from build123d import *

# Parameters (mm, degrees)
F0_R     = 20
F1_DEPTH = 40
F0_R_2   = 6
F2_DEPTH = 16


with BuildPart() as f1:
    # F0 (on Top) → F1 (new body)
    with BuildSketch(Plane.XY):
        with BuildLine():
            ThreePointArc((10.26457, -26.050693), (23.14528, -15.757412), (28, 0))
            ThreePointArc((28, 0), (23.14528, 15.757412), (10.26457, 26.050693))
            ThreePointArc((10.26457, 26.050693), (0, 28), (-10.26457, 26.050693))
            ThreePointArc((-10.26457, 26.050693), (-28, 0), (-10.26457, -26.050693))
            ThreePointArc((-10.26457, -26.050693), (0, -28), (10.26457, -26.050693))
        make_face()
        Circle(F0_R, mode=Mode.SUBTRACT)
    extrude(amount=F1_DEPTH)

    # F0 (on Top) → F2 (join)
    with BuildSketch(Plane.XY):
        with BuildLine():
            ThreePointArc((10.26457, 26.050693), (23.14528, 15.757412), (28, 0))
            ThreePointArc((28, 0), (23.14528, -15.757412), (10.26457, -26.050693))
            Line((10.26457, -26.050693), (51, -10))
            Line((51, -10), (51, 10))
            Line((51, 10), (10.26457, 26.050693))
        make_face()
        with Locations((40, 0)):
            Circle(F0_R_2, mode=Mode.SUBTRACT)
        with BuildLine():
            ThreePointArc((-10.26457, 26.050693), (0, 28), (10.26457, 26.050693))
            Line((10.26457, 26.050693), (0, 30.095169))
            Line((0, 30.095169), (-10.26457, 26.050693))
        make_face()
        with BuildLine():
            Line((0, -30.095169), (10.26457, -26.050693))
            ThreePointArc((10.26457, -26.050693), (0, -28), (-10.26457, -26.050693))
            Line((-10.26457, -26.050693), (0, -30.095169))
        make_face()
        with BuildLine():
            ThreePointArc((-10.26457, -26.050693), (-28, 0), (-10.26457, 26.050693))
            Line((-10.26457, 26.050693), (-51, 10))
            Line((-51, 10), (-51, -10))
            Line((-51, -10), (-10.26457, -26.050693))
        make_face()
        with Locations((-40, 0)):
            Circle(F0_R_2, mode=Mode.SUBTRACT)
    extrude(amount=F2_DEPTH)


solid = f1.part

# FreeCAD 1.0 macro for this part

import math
import FreeCAD as App
import Part
import Sketcher
Q = App.Units.Quantity

doc = App.newDocument("Part")
body = doc.addObject("PartDesign::Body", "Body")

sketch1 = doc.addObject("Sketcher::SketchObject", "Sketch")
body.addObject(sketch1)
sketch1.AttachmentSupport = (doc.XY_Plane, [""])
sketch1.MapMode = "FlatFace"
sketch1.addGeometry([
    Part.ArcOfCircle(Part.Circle(App.Vector(0, 0, 0), App.Vector(0, 0, 1), 28), math.radians(-68), math.radians(0)),
    Part.ArcOfCircle(Part.Circle(App.Vector(0, 0, 0), App.Vector(0, 0, 1), 28), math.radians(0), math.radians(68)),
    Part.ArcOfCircle(Part.Circle(App.Vector(0, 0, 0), App.Vector(0, 0, 1), 28), math.radians(68), math.radians(112)),
    Part.ArcOfCircle(Part.Circle(App.Vector(0, 0, 0), App.Vector(0, 0, 1), 28), math.radians(112), math.radians(248)),
    Part.ArcOfCircle(Part.Circle(App.Vector(0, 0, 0), App.Vector(0, 0, 1), 28), math.radians(-112), math.radians(-68)),
    Part.Circle(App.Vector(0, 0, 0), App.Vector(0, 0, 1), 20),
], False)
sketch1.addConstraint([
    Sketcher.Constraint("Tangent", 0, 2, 1, 1),
    Sketcher.Constraint("Tangent", 1, 2, 2, 1),
    Sketcher.Constraint("Tangent", 2, 2, 3, 1),
    Sketcher.Constraint("Tangent", 3, 2, 4, 1),
    Sketcher.Constraint("Tangent", 4, 2, 0, 1),
    Sketcher.Constraint("Coincident", 0, 3, -1, 1),
    Sketcher.Constraint("Coincident", 2, 3, -1, 1),
    Sketcher.Constraint("Coincident", 5, 3, -1, 1),
    Sketcher.Constraint("PointOnObject", 0, 2, -1),
    Sketcher.Constraint("Horizontal", 1, 2, 2, 2),
    Sketcher.Constraint("Horizontal", 3, 2, 4, 2),
    Sketcher.Constraint("Vertical", 2, 2, 3, 2),
    Sketcher.Constraint("Diameter", 5, Q("40 mm")),
    Sketcher.Constraint("Radius", 0, Q("27.999999 mm")),
    Sketcher.Constraint("DistanceX", -1, 1, 1, 2, Q("10.26457 mm")),
])
pad1 = doc.addObject("PartDesign::Pad", "Pad")
body.addObject(pad1)
pad1.Profile = sketch1
pad1.Length = 40

sketch2 = doc.addObject("Sketcher::SketchObject", "Sketch001")
body.addObject(sketch2)
sketch2.AttachmentSupport = (doc.XY_Plane, [""])
sketch2.MapMode = "FlatFace"
sketch2.addGeometry([
    Part.ArcOfCircle(Part.Circle(App.Vector(0, 0, 0), App.Vector(0, 0, 1), 28), math.radians(0), math.radians(68)),
    Part.ArcOfCircle(Part.Circle(App.Vector(0, 0, 0), App.Vector(0, 0, 1), 28), math.radians(-68), math.radians(0)),
    Part.LineSegment(App.Vector(10, -26, 0), App.Vector(51, -10, 0)),
    Part.LineSegment(App.Vector(51, -10, 0), App.Vector(51, 10, 0)),
    Part.LineSegment(App.Vector(51, 10, 0), App.Vector(10, 26, 0)),
    Part.Circle(App.Vector(40, 0, 0), App.Vector(0, 0, 1), 6),
    Part.ArcOfCircle(Part.Circle(App.Vector(0, 0, 0), App.Vector(0, 0, 1), 28), math.radians(68), math.radians(112)),
    Part.LineSegment(App.Vector(10, 26, 0), App.Vector(0, 30, 0)),
    Part.LineSegment(App.Vector(0, 30, 0), App.Vector(-10, 26, 0)),
    Part.LineSegment(App.Vector(0, -30, 0), App.Vector(10, -26, 0)),
    Part.ArcOfCircle(Part.Circle(App.Vector(0, 0, 0), App.Vector(0, 0, 1), 28), math.radians(-112), math.radians(-68)),
    Part.LineSegment(App.Vector(-10, -26, 0), App.Vector(0, -30, 0)),
    Part.ArcOfCircle(Part.Circle(App.Vector(0, 0, 0), App.Vector(0, 0, 1), 28), math.radians(112), math.radians(248)),
    Part.LineSegment(App.Vector(-10, 26, 0), App.Vector(-51, 10, 0)),
    Part.LineSegment(App.Vector(-51, 10, 0), App.Vector(-51, -10, 0)),
    Part.LineSegment(App.Vector(-51, -10, 0), App.Vector(-10, -26, 0)),
    Part.Circle(App.Vector(-40, 0, 0), App.Vector(0, 0, 1), 6),
], False)
sketch2.addConstraint([
    Sketcher.Constraint("Tangent", 0, 1, 1, 2),
    Sketcher.Constraint("Tangent", 1, 1, 2, 1),
    Sketcher.Constraint("Coincident", 2, 2, 3, 1),
    Sketcher.Constraint("Coincident", 3, 2, 4, 1),
    Sketcher.Constraint("Tangent", 4, 2, 0, 2),
    Sketcher.Constraint("Tangent", 6, 1, 7, 1),
    Sketcher.Constraint("Coincident", 7, 2, 8, 1),
    Sketcher.Constraint("Tangent", 8, 2, 6, 2),
    Sketcher.Constraint("Tangent", 9, 2, 10, 2),
    Sketcher.Constraint("Tangent", 10, 1, 11, 1),
    Sketcher.Constraint("Coincident", 11, 2, 9, 1),
    Sketcher.Constraint("Tangent", 12, 1, 13, 1),
    Sketcher.Constraint("Coincident", 13, 2, 14, 1),
    Sketcher.Constraint("Coincident", 14, 2, 15, 1),
    Sketcher.Constraint("Tangent", 15, 2, 12, 2),
    Sketcher.Constraint("Vertical", 3),
    Sketcher.Constraint("Vertical", 14),
    Sketcher.Constraint("Coincident", 0, 3, -1, 1),
    Sketcher.Constraint("Coincident", 6, 3, -1, 1),
    Sketcher.Constraint("Coincident", 10, 3, -1, 1),
    Sketcher.Constraint("Coincident", 12, 3, -1, 1),
    Sketcher.Constraint("Coincident", 6, 1, 4, 2),
    Sketcher.Constraint("Coincident", 9, 2, 1, 1),
    Sketcher.Constraint("Coincident", 12, 1, 8, 2),
    Sketcher.Constraint("Coincident", 15, 2, 10, 1),
    Sketcher.Constraint("Equal", 5, 16),
    Sketcher.Constraint("Symmetric", 5, 3, 16, 3, -1, 1),
    Sketcher.Constraint("Symmetric", 7, 2, 11, 2, -1, 1),
    Sketcher.Constraint("Symmetric", 3, 2, 13, 2, -2),
    Sketcher.Constraint("PointOnObject", 5, 3, -1),
    Sketcher.Constraint("PointOnObject", 0, 1, -1),
    Sketcher.Constraint("Diameter", 5, Q("12 mm")),
    Sketcher.Constraint("Radius", 0, Q("27.999999 mm")),
    Sketcher.Constraint("DistanceY", 3, 1, 3, 2, Q("20 mm")),
    Sketcher.Constraint("DistanceX", -1, 1, 5, 3, Q("40 mm")),
    Sketcher.Constraint("DistanceX", -1, 1, 2, 2, Q("51 mm")),
])
pad2 = doc.addObject("PartDesign::Pad", "Pad001")
body.addObject(pad2)
pad2.Profile = sketch2
pad2.Length = 16

doc.recompute()
